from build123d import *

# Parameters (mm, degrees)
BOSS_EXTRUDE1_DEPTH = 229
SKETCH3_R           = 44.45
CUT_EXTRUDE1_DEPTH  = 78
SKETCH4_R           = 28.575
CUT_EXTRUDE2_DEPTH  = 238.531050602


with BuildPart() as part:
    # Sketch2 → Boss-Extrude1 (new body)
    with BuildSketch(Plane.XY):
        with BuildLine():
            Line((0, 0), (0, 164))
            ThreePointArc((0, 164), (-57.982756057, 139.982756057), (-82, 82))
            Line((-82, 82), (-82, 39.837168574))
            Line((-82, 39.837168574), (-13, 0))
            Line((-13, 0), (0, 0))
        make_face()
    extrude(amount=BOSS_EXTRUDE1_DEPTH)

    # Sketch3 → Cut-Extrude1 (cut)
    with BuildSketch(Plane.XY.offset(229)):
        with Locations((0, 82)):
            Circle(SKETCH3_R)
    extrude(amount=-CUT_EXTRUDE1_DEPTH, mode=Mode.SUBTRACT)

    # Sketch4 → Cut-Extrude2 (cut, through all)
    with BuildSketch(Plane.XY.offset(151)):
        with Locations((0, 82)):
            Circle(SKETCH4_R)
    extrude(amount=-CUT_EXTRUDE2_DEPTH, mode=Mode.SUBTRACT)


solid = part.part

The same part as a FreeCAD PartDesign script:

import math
import FreeCAD as App
import Part
import Sketcher
Q = App.Units.Quantity

doc = App.newDocument("Part")
body = doc.addObject("PartDesign::Body", "Body")

# Sketch on XY plane
sketch1 = body.newObject("Sketcher::SketchObject", "Sketch")
sketch1.AttachmentSupport = (doc.getObject("XY_Plane"), [""])
sketch1.MapMode = "FlatFace"
sketch1.addGeometry(Part.LineSegment(App.Vector(0, 0, 0), App.Vector(0, 164, 0)), False)
sketch1.addGeometry(Part.ArcOfCircle(Part.Circle(App.Vector(0, 82, 0), App.Vector(0, 0, 1), 82), math.radians(90), math.radians(180)), False)
sketch1.addGeometry(Part.LineSegment(App.Vector(-82, 82, 0), App.Vector(-82, 39.837169, 0)), False)
sketch1.addGeometry(Part.LineSegment(App.Vector(-82, 39.837169, 0), App.Vector(-13, 0, 0)), False)
sketch1.addGeometry(Part.LineSegment(App.Vector(-13, 0, 0), App.Vector(0, 0, 0)), False)
sketch1.addConstraint(Sketcher.Constraint("Coincident", 0, 2, 1, 1))
sketch1.addConstraint(Sketcher.Constraint("Tangent", 1, 2, 2, 1))
sketch1.addConstraint(Sketcher.Constraint("Coincident", 2, 2, 3, 1))
sketch1.addConstraint(Sketcher.Constraint("Coincident", 3, 2, 4, 1))
sketch1.addConstraint(Sketcher.Constraint("Coincident", 4, 2, 0, 1))
sketch1.addConstraint(Sketcher.Constraint("Vertical", 0))
sketch1.addConstraint(Sketcher.Constraint("Vertical", 2))
sketch1.addConstraint(Sketcher.Constraint("Horizontal", 4))
sketch1.addConstraint(Sketcher.Constraint("Coincident", 4, 2, -1, 1))
sketch1.addConstraint(Sketcher.Constraint("PointOnObject", 1, 3, -2))
sketch1.addConstraint(Sketcher.Constraint("Radius", 1, 82.0))
sketch1.addConstraint(Sketcher.Constraint("DistanceX", 4, 1, 4, 2, 13.0))
sketch1.addConstraint(Sketcher.Constraint("DistanceY", 0, 1, 0, 2, 164.0))
sketch1.addConstraint(Sketcher.Constraint("Angle", 3, Q("-30 deg")))
pad1 = body.newObject("PartDesign::Pad", "Pad")
pad1.Profile = sketch1
pad1.Length = 229

# Sketch on XY plane
sketch2 = body.newObject("Sketcher::SketchObject", "Sketch001")
sketch2.AttachmentSupport = (doc.getObject("XY_Plane"), [""])
sketch2.MapMode = "FlatFace"
sketch2.AttachmentOffset = App.Placement(App.Vector(0, 0, 229), App.Rotation())
sketch2.addGeometry(Part.Circle(App.Vector(0, 82, 0), App.Vector(0, 0, 1), 44.45), False)
sketch2.addConstraint(Sketcher.Constraint("PointOnObject", 0, 3, -2))
sketch2.addConstraint(Sketcher.Constraint("Diameter", 0, 88.9))
sketch2.addConstraint(Sketcher.Constraint("DistanceY", -1, 1, 0, 3, 82.0))
pocket1 = body.newObject("PartDesign::Pocket", "Pocket")
pocket1.Profile = sketch2
pocket1.Length = 78

# Sketch on XY plane
sketch3 = body.newObject("Sketcher::SketchObject", "Sketch002")
sketch3.AttachmentSupport = (doc.getObject("XY_Plane"), [""])
sketch3.MapMode = "FlatFace"
sketch3.AttachmentOffset = App.Placement(App.Vector(0, 0, 151), App.Rotation())
sketch3.addGeometry(Part.Circle(App.Vector(0, 82, 0), App.Vector(0, 0, 1), 28.575), False)
sketch3.addConstraint(Sketcher.Constraint("PointOnObject", 0, 3, -2))
sketch3.addConstraint(Sketcher.Constraint("Diameter", 0, 57.15))
sketch3.addConstraint(Sketcher.Constraint("DistanceY", -1, 1, 0, 3, 82.0))
pocket2 = body.newObject("PartDesign::Pocket", "Pocket001")
pocket2.Profile = sketch3
pocket2.Type = "ThroughAll"

doc.recompute()
